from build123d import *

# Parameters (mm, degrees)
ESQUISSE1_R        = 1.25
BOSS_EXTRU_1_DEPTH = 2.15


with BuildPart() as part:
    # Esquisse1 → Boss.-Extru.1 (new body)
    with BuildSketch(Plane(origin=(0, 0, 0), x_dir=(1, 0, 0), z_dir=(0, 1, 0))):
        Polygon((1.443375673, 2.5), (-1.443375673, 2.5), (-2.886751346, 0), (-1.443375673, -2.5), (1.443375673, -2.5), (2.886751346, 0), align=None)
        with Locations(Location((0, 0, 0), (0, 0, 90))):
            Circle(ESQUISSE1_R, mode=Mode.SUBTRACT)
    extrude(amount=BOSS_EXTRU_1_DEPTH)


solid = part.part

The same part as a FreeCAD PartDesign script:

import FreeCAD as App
import Part
import Sketcher

V = App.Vector
Q = App.Units.Quantity


def add_polygon(sketch, points):
    """Adds a closed chain of lines whose ends are joined by coincident constraints."""
    first, n = sketch.GeometryCount, len(points)
    for a, b in zip(points, points[1:] + points[:1]):
        sketch.addGeometry(Part.LineSegment(App.Vector(*a, 0), App.Vector(*b, 0)), False)
    for i in range(n):
        sketch.addConstraint(Sketcher.Constraint("Coincident", first + i, 2, first + (i + 1) % n, 1))

doc = App.newDocument("Part")
body = doc.addObject("PartDesign::Body", "Body")

sketch1 = body.newObject("Sketcher::SketchObject", "Sketch")
sketch1.AttachmentSupport = (doc.getObject("XZ_Plane"), [""])
sketch1.MapMode = "FlatFace"
add_polygon(sketch1, [(1.4, -2.5), (-1.4, -2.5), (-2.9, 0), (-1.4, 2.5), (1.4, 2.5), (2.9, 0)])
sketch1.addGeometry(Part.Circle(V(0, 0, 0), V(0, 0, 1), 1.2), False)
sketch1.addConstraint([
    Sketcher.Constraint("Horizontal", 0),
    Sketcher.Constraint("Horizontal", 3),
    Sketcher.Constraint("Coincident", 6, 3, -1, 1),
    Sketcher.Constraint("Symmetric", 0, 2, 3, 2, -1, 1),
    Sketcher.Constraint("Symmetric", 1, 2, 4, 2, -1, 1),
    Sketcher.Constraint("PointOnObject", 1, 2, -1),
    Sketcher.Constraint("Parallel", 2, 5),
    Sketcher.Constraint("Vertical", 0, 2, 2, 2),
    Sketcher.Constraint("Diameter", 6, 2.5),
    Sketcher.Constraint("Angle", 1, Q("120 deg")),
    Sketcher.Constraint("DistanceY", 0, 2, 2, 2, 5.0),
    Sketcher.Constraint("DistanceX", 0, 2, 0, 1, 2.886751),
])
pad1 = body.newObject("PartDesign::Pad", "Pad")
pad1.Profile = sketch1
pad1.Length = 2.15
pad1.Reversed = True

doc.recompute()
